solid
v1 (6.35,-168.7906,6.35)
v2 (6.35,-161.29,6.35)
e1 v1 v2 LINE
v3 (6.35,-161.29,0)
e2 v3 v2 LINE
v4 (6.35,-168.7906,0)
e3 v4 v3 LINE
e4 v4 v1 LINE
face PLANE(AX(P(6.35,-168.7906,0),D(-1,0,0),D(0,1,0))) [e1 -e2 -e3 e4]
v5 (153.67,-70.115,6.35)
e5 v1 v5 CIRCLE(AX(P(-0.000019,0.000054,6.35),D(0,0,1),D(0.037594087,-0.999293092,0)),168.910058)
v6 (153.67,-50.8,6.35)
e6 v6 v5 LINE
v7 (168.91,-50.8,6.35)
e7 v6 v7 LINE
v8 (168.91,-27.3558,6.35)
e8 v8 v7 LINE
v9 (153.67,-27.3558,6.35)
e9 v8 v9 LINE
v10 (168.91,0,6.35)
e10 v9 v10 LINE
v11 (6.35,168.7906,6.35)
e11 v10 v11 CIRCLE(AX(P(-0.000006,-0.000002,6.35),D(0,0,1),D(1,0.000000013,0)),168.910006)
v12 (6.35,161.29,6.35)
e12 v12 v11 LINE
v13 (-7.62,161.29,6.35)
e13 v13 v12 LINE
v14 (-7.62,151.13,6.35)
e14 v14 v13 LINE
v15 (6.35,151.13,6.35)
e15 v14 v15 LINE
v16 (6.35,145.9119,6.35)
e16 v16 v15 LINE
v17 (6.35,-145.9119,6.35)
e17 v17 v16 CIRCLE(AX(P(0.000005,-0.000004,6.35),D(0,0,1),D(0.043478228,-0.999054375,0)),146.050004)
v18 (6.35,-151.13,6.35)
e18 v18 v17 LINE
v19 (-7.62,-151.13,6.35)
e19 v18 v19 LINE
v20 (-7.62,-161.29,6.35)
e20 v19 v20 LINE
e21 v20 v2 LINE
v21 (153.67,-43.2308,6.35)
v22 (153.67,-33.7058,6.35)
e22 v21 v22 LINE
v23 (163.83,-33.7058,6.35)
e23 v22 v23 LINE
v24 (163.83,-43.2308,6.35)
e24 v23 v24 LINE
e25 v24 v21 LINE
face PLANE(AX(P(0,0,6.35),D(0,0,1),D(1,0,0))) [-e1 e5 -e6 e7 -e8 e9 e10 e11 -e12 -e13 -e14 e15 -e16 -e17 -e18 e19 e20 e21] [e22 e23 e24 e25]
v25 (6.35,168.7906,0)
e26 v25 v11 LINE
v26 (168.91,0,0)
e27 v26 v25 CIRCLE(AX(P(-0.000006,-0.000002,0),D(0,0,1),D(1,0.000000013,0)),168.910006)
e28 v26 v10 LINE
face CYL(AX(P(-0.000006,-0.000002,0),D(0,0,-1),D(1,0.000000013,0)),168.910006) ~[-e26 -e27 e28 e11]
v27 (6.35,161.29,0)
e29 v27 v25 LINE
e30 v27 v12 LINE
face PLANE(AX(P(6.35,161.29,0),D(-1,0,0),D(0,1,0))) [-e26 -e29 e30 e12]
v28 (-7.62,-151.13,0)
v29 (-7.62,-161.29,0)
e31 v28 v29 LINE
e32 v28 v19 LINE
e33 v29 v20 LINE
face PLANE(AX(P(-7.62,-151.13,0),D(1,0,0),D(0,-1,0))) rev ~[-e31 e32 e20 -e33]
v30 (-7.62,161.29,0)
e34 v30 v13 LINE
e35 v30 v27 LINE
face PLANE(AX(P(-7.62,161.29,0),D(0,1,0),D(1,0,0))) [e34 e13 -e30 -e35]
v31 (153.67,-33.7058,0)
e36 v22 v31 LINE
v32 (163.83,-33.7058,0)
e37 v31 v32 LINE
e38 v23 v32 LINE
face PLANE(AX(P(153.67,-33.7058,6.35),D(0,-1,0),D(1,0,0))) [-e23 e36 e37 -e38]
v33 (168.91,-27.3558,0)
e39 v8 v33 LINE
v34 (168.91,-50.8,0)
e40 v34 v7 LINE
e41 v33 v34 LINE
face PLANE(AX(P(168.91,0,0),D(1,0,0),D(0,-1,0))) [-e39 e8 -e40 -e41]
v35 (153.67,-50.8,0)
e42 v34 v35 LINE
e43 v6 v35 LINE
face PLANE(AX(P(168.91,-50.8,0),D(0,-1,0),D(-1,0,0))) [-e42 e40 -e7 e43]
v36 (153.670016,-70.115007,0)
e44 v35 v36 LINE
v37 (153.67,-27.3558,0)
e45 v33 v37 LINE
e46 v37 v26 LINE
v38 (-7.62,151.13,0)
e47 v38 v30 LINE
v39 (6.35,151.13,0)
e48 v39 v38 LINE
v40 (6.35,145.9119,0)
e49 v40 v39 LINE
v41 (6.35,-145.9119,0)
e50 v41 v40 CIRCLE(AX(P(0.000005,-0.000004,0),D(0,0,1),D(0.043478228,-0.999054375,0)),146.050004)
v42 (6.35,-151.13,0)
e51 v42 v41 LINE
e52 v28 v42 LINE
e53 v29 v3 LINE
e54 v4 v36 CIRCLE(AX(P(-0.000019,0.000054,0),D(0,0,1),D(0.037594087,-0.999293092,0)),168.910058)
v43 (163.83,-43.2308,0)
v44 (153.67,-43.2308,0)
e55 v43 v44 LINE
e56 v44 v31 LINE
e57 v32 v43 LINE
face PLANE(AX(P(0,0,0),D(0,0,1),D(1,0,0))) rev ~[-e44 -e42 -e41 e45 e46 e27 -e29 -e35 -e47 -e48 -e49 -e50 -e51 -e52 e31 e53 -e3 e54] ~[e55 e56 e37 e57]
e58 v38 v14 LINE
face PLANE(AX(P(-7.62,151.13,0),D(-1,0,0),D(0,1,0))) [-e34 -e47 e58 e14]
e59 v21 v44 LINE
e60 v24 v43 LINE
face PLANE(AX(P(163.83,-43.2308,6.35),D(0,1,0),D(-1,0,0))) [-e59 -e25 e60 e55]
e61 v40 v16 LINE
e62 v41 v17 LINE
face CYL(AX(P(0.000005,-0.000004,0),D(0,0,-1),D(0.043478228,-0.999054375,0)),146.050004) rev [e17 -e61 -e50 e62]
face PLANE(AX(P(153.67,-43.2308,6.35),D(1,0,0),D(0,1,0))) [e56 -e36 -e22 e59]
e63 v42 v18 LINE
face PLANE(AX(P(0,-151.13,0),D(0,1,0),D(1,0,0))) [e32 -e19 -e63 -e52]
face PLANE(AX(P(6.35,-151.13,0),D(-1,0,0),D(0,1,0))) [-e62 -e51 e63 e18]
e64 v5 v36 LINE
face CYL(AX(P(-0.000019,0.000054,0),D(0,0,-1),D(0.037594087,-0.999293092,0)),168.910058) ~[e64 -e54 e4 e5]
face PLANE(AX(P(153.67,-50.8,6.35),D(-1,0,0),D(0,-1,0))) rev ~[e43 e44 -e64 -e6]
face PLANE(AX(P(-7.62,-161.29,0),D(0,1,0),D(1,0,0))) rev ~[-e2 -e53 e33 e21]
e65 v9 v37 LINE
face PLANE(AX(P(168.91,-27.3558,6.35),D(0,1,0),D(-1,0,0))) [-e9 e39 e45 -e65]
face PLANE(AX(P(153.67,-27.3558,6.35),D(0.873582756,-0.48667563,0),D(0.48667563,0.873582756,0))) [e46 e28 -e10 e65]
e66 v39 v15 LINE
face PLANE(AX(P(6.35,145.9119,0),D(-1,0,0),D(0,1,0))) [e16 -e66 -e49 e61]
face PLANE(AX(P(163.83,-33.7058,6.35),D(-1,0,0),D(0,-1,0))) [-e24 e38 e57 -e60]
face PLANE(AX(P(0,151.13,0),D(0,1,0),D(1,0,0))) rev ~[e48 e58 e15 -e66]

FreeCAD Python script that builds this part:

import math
import FreeCAD as App
import Part
import Sketcher

V = App.Vector
Q = App.Units.Quantity

doc = App.newDocument("Part")
params = doc.addObject("Spreadsheet::Sheet", "Params")
for row, (alias, value) in enumerate([
    ("sketch1_height", "2 in"),
    ("sketch1_radius", "5.75 in"),
    ("sketch1_height2", "0.4 in"),
    ("sketch1_width", "0.55 in"),
    ("sketch1_radius2", "6.65 in"),
    ("pad1_length", "0.25 in"),
    ("sketch2_width", "0.4 in"),
    ("sketch2_width2", "0.6 in"),
    ("sketch2_height", "0.375 in"),
    ("sketch2_radius", "6.65 in"),
    ("pocket1_length", "1 in"),
], start=1):
    params.set(f"A{row}", alias)
    params.set(f"B{row}", "=" + value)
    params.setAlias(f"B{row}", alias)

body = doc.addObject("PartDesign::Body", "Body")

# Sketch on XY plane
sketch1 = body.newObject("Sketcher::SketchObject", "Sketch")
sketch1.AttachmentSupport = (doc.getObject("XY_Plane"), [""])
sketch1.MapMode = "FlatFace"
sketch1.addGeometry([
    Part.ArcOfCircle(Part.Circle(V(0, 0, 0), V(0, 0, 1), 146), math.radians(-88), math.radians(88)),  # 0
    Part.LineSegment(V(6, -146, 0), V(6, -151, 0)),  # 1
    Part.LineSegment(V(6, -151, 0), V(-8, -151, 0)),  # 2
    Part.LineSegment(V(-8, -151, 0), V(-8, -161, 0)),  # 3
    Part.LineSegment(V(-8, -161, 0), V(6, -161, 0)),  # 4
    Part.LineSegment(V(6, -161, 0), V(6, -169, 0)),  # 5
    Part.ArcOfCircle(Part.Circle(V(0, 0, 0), V(0, 0, 1), 169), math.radians(-88), math.radians(-18)),  # 6
    Part.LineSegment(V(161, -51, 0), V(169, -51, 0)),  # 7
    Part.LineSegment(V(169, -51, 0), V(169, 0, 0)),  # 8
    Part.ArcOfCircle(Part.Circle(V(0, 0, 0), V(0, 0, 1), 169), math.radians(0), math.radians(88)),  # 9
    Part.LineSegment(V(6, 169, 0), V(6, 161, 0)),  # 10
    Part.LineSegment(V(6, 161, 0), V(-8, 161, 0)),  # 11
    Part.LineSegment(V(-8, 161, 0), V(-8, 151, 0)),  # 12
    Part.LineSegment(V(-8, 151, 0), V(6, 151, 0)),  # 13
    Part.LineSegment(V(6, 151, 0), V(6, 146, 0)),  # 14
], False)
sketch1.addConstraint([
    Sketcher.Constraint("Coincident", 0, 1, 1, 1),
    Sketcher.Constraint("Coincident", 1, 2, 2, 1),
    Sketcher.Constraint("Coincident", 2, 2, 3, 1),
    Sketcher.Constraint("Coincident", 3, 2, 4, 1),
    Sketcher.Constraint("Coincident", 4, 2, 5, 1),
    Sketcher.Constraint("Coincident", 5, 2, 6, 1),
    Sketcher.Constraint("Coincident", 6, 2, 7, 1),
    Sketcher.Constraint("Coincident", 7, 2, 8, 1),
    Sketcher.Constraint("Tangent", 8, 2, 9, 1),
    Sketcher.Constraint("Coincident", 9, 2, 10, 1),
    Sketcher.Constraint("Coincident", 10, 2, 11, 1),
    Sketcher.Constraint("Coincident", 11, 2, 12, 1),
    Sketcher.Constraint("Coincident", 12, 2, 13, 1),
    Sketcher.Constraint("Coincident", 13, 2, 14, 1),
    Sketcher.Constraint("Coincident", 14, 2, 0, 2),
    Sketcher.Constraint("Vertical", 1),
    Sketcher.Constraint("Horizontal", 2),
    Sketcher.Constraint("Vertical", 3),
    Sketcher.Constraint("Horizontal", 4),
    Sketcher.Constraint("Vertical", 5),
    Sketcher.Constraint("Horizontal", 7),
    Sketcher.Constraint("Vertical", 8),
    Sketcher.Constraint("Vertical", 10),
    Sketcher.Constraint("Horizontal", 11),
    Sketcher.Constraint("Vertical", 12),
    Sketcher.Constraint("Horizontal", 13),
    Sketcher.Constraint("Vertical", 14),
    Sketcher.Constraint("Coincident", 0, 3, -1, 1),
    Sketcher.Constraint("Coincident", 6, 3, -1, 1),
    Sketcher.Constraint("Coincident", 9, 3, -1, 1),
    Sketcher.Constraint("Equal", 6, 9),
    Sketcher.Constraint("Symmetric", 4, 2, 10, 2, -1),
    Sketcher.Constraint("Symmetric", 2, 2, 12, 2, -1),
    Sketcher.Constraint("Vertical", 1, 2, 4, 2),
    Sketcher.Constraint("Vertical", 10, 2, 13, 2),
    Sketcher.Constraint("DistanceY", 8, 1, 8, 2, Q("2 in")),
    Sketcher.Constraint("Radius", 0, Q("5.75 in")),
    Sketcher.Constraint("DistanceY", 3, 2, 3, 1, Q("0.4 in")),
    Sketcher.Constraint("DistanceX", 2, 2, 2, 1, Q("0.55 in")),
    Sketcher.Constraint("DistanceX", -1, 1, 1, 2, Q("0.25 in")),
    Sketcher.Constraint("Radius", 6, Q("6.65 in")),
    Sketcher.Constraint("DistanceY", 1, 2, 1, 1, Q("5.218 mm")),
])
sketch1.setExpression("Constraints[35]", "Params.sketch1_height")
sketch1.setExpression("Constraints[36]", "Params.sketch1_radius")
sketch1.setExpression("Constraints[37]", "Params.sketch1_height2")
sketch1.setExpression("Constraints[38]", "Params.sketch1_width")
sketch1.setExpression("Constraints[40]", "Params.sketch1_radius2")
pad1 = body.newObject("PartDesign::Pad", "Pad")
pad1.Profile = sketch1
pad1.setExpression("Length", "Params.pad1_length")

# Sketch on XY plane
sketch2 = body.newObject("Sketcher::SketchObject", "Sketch001")
sketch2.AttachmentSupport = (doc.getObject("XY_Plane"), [""])
sketch2.MapMode = "FlatFace"
sketch2.AttachmentOffset = App.Placement(V(0, 0, 0.25 * 25.4), App.Rotation())
sketch2.addGeometry([
    Part.LineSegment(V(154, -43, 0), V(164, -43, 0)),  # 0
    Part.LineSegment(V(164, -43, 0), V(164, -34, 0)),  # 1
    Part.LineSegment(V(164, -34, 0), V(154, -34, 0)),  # 2
    Part.LineSegment(V(154, -34, 0), V(154, -43, 0)),  # 3
    Part.LineSegment(V(154, -27, 0), V(169, -27, 0)),  # 4
    Part.LineSegment(V(169, -27, 0), V(169, 0, 0)),  # 5
    Part.LineSegment(V(169, 0, 0), V(154, -27, 0)),  # 6
    Part.ArcOfCircle(Part.Circle(V(0, 0, 0), V(0, 0, 1), 169), math.radians(-24.53), math.radians(-17.5)),  # 7
    Part.LineSegment(V(161, -51, 0), V(154, -51, 0)),  # 8
    Part.LineSegment(V(154, -51, 0), V(154, -70, 0)),  # 9
], False)
sketch2.addConstraint([
    Sketcher.Constraint("Coincident", 0, 2, 1, 1),
    Sketcher.Constraint("Coincident", 1, 2, 2, 1),
    Sketcher.Constraint("Coincident", 2, 2, 3, 1),
    Sketcher.Constraint("Coincident", 3, 2, 0, 1),
    Sketcher.Constraint("Coincident", 4, 2, 5, 1),
    Sketcher.Constraint("Coincident", 5, 2, 6, 1),
    Sketcher.Constraint("Coincident", 6, 2, 4, 1),
    Sketcher.Constraint("Coincident", 7, 2, 8, 1),
    Sketcher.Constraint("Coincident", 8, 2, 9, 1),
    Sketcher.Constraint("Coincident", 9, 2, 7, 1),
    Sketcher.Constraint("Horizontal", 0),
    Sketcher.Constraint("Vertical", 1),
    Sketcher.Constraint("Horizontal", 2),
    Sketcher.Constraint("Vertical", 3),
    Sketcher.Constraint("Horizontal", 4),
    Sketcher.Constraint("Vertical", 5),
    Sketcher.Constraint("Horizontal", 8),
    Sketcher.Constraint("Vertical", 9),
    Sketcher.Constraint("Coincident", 7, 3, -1, 1),
    Sketcher.Constraint("PointOnObject", 5, 2, -1),
    Sketcher.Constraint("Vertical", 3, 2, 6, 2),
    Sketcher.Constraint("Vertical", 6, 2, 8, 2),
    Sketcher.Constraint("DistanceX", 0, 1, 0, 2, Q("0.4 in")),
    Sketcher.Constraint("DistanceX", 4, 1, 4, 2, Q("0.6 in")),
    Sketcher.Constraint("DistanceY", 1, 1, 1, 2, Q("0.375 in")),
    Sketcher.Constraint("Radius", 7, Q("6.65 in")),
    Sketcher.Constraint("DistanceY", 7, 2, -1, 1, Q("2 in")),
    Sketcher.Constraint("DistanceY", 7, 2, 0, 2, Q("0.298 in")),
    Sketcher.Constraint("DistanceY", 7, 2, 6, 2, Q("0.923 in")),
    Sketcher.Constraint("DistanceX", -1, 1, 0, 2, Q("6.45 in")),
])
sketch2.setExpression("Constraints[22]", "Params.sketch2_width")
sketch2.setExpression("Constraints[23]", "Params.sketch2_width2")
sketch2.setExpression("Constraints[24]", "Params.sketch2_height")
sketch2.setExpression("Constraints[25]", "Params.sketch2_radius")
pocket1 = body.newObject("PartDesign::Pocket", "Pocket")
pocket1.Profile = sketch2
pocket1.setExpression("Length", "Params.pocket1_length")

doc.recompute()
